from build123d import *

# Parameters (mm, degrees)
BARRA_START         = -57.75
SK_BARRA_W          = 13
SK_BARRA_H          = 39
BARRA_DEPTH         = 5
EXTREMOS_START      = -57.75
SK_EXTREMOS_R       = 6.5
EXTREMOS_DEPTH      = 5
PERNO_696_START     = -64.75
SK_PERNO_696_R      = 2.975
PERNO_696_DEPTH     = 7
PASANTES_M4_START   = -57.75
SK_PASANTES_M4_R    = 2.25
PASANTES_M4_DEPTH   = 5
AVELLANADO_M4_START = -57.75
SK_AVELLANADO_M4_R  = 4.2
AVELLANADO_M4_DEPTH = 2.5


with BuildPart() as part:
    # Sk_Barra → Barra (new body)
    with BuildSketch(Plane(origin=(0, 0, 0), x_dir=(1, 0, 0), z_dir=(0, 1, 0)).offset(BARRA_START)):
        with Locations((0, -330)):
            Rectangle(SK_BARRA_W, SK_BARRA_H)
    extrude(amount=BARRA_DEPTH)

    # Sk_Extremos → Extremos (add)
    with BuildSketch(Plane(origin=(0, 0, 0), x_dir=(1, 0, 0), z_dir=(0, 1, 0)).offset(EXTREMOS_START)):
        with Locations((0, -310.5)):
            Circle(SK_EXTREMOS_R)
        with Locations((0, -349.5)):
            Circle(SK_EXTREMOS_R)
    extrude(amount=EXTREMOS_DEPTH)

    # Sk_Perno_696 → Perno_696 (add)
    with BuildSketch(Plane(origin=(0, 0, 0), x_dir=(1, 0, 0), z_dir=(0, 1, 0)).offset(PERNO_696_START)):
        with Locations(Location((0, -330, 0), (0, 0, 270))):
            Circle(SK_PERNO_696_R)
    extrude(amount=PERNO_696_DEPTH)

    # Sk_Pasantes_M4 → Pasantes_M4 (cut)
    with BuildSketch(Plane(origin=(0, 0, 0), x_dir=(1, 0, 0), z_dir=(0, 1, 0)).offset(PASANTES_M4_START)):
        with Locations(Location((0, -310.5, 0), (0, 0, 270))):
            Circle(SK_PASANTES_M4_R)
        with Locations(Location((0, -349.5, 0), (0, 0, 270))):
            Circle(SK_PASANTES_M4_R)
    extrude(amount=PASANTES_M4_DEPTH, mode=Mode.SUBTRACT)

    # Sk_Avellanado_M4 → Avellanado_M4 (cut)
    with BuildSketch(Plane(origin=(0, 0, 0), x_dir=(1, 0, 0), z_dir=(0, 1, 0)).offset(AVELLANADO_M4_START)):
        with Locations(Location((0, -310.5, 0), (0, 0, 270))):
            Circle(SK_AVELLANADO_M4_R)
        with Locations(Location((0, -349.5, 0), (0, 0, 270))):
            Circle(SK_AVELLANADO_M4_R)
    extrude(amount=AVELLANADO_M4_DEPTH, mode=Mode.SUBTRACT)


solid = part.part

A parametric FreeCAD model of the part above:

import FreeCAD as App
import Part
import Sketcher

doc = App.newDocument("Part")
body = doc.addObject("PartDesign::Body", "Body")

sketch1 = body.newObject("Sketcher::SketchObject", "Sketch")
sketch1.AttachmentSupport = (doc.getObject("XZ_Plane"), [""])
sketch1.MapMode = "FlatFace"
sketch1.AttachmentOffset = App.Placement(App.Vector(0, 0, 57.75), App.Rotation())
sketch1.addGeometry([
    Part.LineSegment(App.Vector(-6, 310, 0), App.Vector(-6, 350, 0)),
    Part.LineSegment(App.Vector(-6, 350, 0), App.Vector(6, 350, 0)),
    Part.LineSegment(App.Vector(6, 350, 0), App.Vector(6, 310, 0)),
    Part.LineSegment(App.Vector(6, 310, 0), App.Vector(-6, 310, 0)),
], False)
sketch1.addConstraint([
    Sketcher.Constraint("Coincident", 0, 2, 1, 1),
    Sketcher.Constraint("Coincident", 1, 2, 2, 1),
    Sketcher.Constraint("Coincident", 2, 2, 3, 1),
    Sketcher.Constraint("Coincident", 3, 2, 0, 1),
    Sketcher.Constraint("Vertical", 0),
    Sketcher.Constraint("Horizontal", 1),
    Sketcher.Constraint("Vertical", 2),
    Sketcher.Constraint("Horizontal", 3),
    Sketcher.Constraint("DistanceX", 1, 1, 1, 2, 13.0),
    Sketcher.Constraint("DistanceY", 0, 1, 0, 2, 39.0),
    Sketcher.Constraint("DistanceX", 0, 2, -1, 1, 6.5),
    Sketcher.Constraint("DistanceY", -1, 1, 0, 2, 349.5),
])
pad1 = body.newObject("PartDesign::Pad", "Pad")
pad1.Profile = sketch1
pad1.Length = 5
pad1.Reversed = True

sketch2 = body.newObject("Sketcher::SketchObject", "Sketch001")
sketch2.AttachmentSupport = (doc.getObject("XZ_Plane"), [""])
sketch2.MapMode = "FlatFace"
sketch2.AttachmentOffset = App.Placement(App.Vector(0, 0, 57.75), App.Rotation())
sketch2.addGeometry([
    Part.Circle(App.Vector(0, 310, 0), App.Vector(0, 0, 1), 6),
    Part.Circle(App.Vector(0, 350, 0), App.Vector(0, 0, 1), 6),
], False)
sketch2.addConstraint([
    Sketcher.Constraint("Equal", 0, 1),
    Sketcher.Constraint("PointOnObject", 0, 3, -2),
    Sketcher.Constraint("PointOnObject", 1, 3, -2),
    Sketcher.Constraint("Diameter", 0, 13.0),
    Sketcher.Constraint("DistanceY", 0, 3, 1, 3, 39.0),
    Sketcher.Constraint("DistanceY", -1, 1, 0, 3, 310.5),
])
pad2 = body.newObject("PartDesign::Pad", "Pad001")
pad2.Profile = sketch2
pad2.Length = 5
pad2.Reversed = True

sketch3 = body.newObject("Sketcher::SketchObject", "Sketch002")
sketch3.AttachmentSupport = (doc.getObject("XZ_Plane"), [""])
sketch3.MapMode = "FlatFace"
sketch3.AttachmentOffset = App.Placement(App.Vector(0, 0, 64.75), App.Rotation())
sketch3.addGeometry(Part.Circle(App.Vector(0, 330, 0), App.Vector(0, 0, 1), 3), False)
sketch3.addConstraint([
    Sketcher.Constraint("PointOnObject", 0, 3, -2),
    Sketcher.Constraint("Diameter", 0, 5.95),
    Sketcher.Constraint("DistanceY", -1, 1, 0, 3, 330.0),
])
pad3 = body.newObject("PartDesign::Pad", "Pad002")
pad3.Profile = sketch3
pad3.Length = 7
pad3.Reversed = True

sketch4 = body.newObject("Sketcher::SketchObject", "Sketch003")
sketch4.AttachmentSupport = (doc.getObject("XZ_Plane"), [""])
sketch4.MapMode = "FlatFace"
sketch4.AttachmentOffset = App.Placement(App.Vector(0, 0, 57.75), App.Rotation())
sketch4.addGeometry([
    Part.Circle(App.Vector(0, 310.5, 0), App.Vector(0, 0, 1), 2.2),
    Part.Circle(App.Vector(0, 349.5, 0), App.Vector(0, 0, 1), 2.2),
], False)
sketch4.addConstraint([
    Sketcher.Constraint("Equal", 0, 1),
    Sketcher.Constraint("PointOnObject", 0, 3, -2),
    Sketcher.Constraint("PointOnObject", 1, 3, -2),
    Sketcher.Constraint("Diameter", 0, 4.5),
    Sketcher.Constraint("DistanceY", 0, 3, 1, 3, 39.0),
    Sketcher.Constraint("DistanceY", -1, 1, 0, 3, 310.5),
])
pocket1 = body.newObject("PartDesign::Pocket", "Pocket")
pocket1.Profile = sketch4
pocket1.Length = 5

sketch5 = body.newObject("Sketcher::SketchObject", "Sketch004")
sketch5.AttachmentSupport = (doc.getObject("XZ_Plane"), [""])
sketch5.MapMode = "FlatFace"
sketch5.AttachmentOffset = App.Placement(App.Vector(0, 0, 57.75), App.Rotation())
sketch5.addGeometry([
    Part.Circle(App.Vector(0, 310.5, 0), App.Vector(0, 0, 1), 4.2),
    Part.Circle(App.Vector(0, 349.5, 0), App.Vector(0, 0, 1), 4.2),
], False)
sketch5.addConstraint([
    Sketcher.Constraint("Equal", 0, 1),
    Sketcher.Constraint("PointOnObject", 0, 3, -2),
    Sketcher.Constraint("PointOnObject", 1, 3, -2),
    Sketcher.Constraint("Diameter", 0, 8.4),
    Sketcher.Constraint("DistanceY", 0, 3, 1, 3, 39.0),
    Sketcher.Constraint("DistanceY", -1, 1, 0, 3, 310.5),
])
pocket2 = body.newObject("PartDesign::Pocket", "Pocket001")
pocket2.Profile = sketch5
pocket2.Length = 2.5

doc.recompute()
